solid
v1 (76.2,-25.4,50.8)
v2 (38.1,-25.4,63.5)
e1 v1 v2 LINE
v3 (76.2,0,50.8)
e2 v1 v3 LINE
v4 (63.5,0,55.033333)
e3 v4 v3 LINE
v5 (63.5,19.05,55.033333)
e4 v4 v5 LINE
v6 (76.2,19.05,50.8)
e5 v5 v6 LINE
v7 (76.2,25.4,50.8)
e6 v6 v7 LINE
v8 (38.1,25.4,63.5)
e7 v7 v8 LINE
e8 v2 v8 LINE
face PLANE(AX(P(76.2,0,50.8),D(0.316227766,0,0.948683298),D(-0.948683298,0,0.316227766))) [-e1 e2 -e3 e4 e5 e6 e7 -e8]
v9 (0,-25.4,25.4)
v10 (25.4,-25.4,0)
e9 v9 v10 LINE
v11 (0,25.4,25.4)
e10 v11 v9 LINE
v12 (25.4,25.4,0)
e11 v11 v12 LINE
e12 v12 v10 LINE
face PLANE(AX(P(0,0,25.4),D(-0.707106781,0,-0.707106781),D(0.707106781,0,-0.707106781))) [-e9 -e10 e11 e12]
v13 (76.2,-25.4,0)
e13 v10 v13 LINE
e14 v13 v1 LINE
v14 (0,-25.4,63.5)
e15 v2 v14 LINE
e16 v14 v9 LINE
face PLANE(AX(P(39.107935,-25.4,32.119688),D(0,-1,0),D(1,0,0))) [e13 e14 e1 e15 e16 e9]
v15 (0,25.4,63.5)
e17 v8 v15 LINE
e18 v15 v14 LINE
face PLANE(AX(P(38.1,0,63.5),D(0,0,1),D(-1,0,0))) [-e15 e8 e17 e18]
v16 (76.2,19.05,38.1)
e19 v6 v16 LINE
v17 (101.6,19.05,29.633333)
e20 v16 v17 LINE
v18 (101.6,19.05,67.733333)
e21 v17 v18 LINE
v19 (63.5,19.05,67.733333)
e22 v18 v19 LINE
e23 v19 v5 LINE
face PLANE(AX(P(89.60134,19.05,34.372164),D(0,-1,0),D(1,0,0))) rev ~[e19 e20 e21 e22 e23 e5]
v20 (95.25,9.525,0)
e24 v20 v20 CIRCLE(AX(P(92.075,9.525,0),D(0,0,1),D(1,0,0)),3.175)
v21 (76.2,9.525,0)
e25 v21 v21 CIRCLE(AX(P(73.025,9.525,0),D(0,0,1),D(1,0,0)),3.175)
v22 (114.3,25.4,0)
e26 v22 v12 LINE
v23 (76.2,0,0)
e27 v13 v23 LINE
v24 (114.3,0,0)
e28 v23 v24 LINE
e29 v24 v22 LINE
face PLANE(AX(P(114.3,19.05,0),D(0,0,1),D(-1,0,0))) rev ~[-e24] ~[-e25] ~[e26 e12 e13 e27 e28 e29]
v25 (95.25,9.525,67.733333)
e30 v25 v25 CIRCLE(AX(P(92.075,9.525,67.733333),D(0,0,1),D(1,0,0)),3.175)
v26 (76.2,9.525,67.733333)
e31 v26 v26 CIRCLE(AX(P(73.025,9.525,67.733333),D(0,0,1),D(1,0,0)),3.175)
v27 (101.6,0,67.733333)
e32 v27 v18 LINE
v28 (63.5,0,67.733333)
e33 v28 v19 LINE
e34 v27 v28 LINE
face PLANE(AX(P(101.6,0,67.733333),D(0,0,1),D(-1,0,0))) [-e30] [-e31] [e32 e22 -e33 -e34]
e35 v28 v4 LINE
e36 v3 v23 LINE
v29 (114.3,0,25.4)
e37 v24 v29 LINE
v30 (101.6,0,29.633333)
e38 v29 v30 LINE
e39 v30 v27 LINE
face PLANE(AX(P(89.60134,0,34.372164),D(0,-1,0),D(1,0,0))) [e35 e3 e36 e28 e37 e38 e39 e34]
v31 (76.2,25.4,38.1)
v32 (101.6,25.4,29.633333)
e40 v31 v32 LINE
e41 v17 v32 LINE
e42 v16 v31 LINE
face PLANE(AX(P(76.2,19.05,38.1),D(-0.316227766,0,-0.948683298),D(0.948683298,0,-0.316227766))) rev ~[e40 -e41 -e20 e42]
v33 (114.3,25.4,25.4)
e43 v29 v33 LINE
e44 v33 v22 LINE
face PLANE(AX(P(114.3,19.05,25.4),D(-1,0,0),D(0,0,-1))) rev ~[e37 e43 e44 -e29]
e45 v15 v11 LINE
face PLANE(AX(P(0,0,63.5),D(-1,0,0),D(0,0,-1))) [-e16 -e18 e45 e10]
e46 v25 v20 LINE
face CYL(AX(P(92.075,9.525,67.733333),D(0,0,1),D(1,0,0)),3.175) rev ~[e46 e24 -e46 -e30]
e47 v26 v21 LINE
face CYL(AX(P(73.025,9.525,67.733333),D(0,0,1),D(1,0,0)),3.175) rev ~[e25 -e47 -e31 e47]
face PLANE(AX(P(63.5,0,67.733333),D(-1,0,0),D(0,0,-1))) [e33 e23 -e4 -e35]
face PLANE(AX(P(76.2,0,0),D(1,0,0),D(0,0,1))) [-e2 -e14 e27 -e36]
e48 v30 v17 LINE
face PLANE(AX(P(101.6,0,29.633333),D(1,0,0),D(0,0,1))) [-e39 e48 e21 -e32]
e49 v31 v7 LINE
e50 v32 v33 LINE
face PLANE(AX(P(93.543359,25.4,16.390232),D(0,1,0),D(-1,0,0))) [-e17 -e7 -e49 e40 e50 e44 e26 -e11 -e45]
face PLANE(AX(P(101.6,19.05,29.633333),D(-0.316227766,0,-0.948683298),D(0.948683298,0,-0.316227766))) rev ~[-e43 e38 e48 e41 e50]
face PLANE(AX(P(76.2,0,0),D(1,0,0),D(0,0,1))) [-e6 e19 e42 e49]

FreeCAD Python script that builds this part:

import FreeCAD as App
import Part
import Sketcher
from FreeCAD import Vector
Q = App.Units.Quantity

doc = App.newDocument("Part")
body = doc.addObject("PartDesign::Body", "Body")

sketch1 = body.newObject("Sketcher::SketchObject", "Sketch")
sketch1.AttachmentSupport = (doc.getObject("XZ_Plane"), [""])
sketch1.MapMode = "FlatFace"
sketch1.addGeometry([
    Part.LineSegment(Vector(38, 64, 0), Vector(0, 64, 0)),
    Part.LineSegment(Vector(0, 64, 0), Vector(0, 25, 0)),
    Part.LineSegment(Vector(0, 25, 0), Vector(25, 0, 0)),
    Part.LineSegment(Vector(25, 0, 0), Vector(76, 0, 0)),
    Part.LineSegment(Vector(76, 0, 0), Vector(76, 51, 0)),
    Part.LineSegment(Vector(76, 51, 0), Vector(38, 64, 0)),
], False)
sketch1.addConstraint([
    Sketcher.Constraint("Coincident", 0, 2, 1, 1),
    Sketcher.Constraint("Coincident", 1, 2, 2, 1),
    Sketcher.Constraint("Coincident", 2, 2, 3, 1),
    Sketcher.Constraint("Coincident", 3, 2, 4, 1),
    Sketcher.Constraint("Coincident", 4, 2, 5, 1),
    Sketcher.Constraint("Coincident", 5, 2, 0, 1),
    Sketcher.Constraint("Horizontal", 0),
    Sketcher.Constraint("Vertical", 1),
    Sketcher.Constraint("Horizontal", 3),
    Sketcher.Constraint("Vertical", 4),
    Sketcher.Constraint("PointOnObject", 0, 2, -2),
    Sketcher.Constraint("PointOnObject", 2, 2, -1),
    Sketcher.Constraint("Equal", 0, 1),
    Sketcher.Constraint("Equal", 3, 4),
    Sketcher.Constraint("DistanceX", 3, 1, 3, 2, Q("2 in")),
    Sketcher.Constraint("DistanceX", 0, 2, 0, 1, Q("1.5 in")),
    Sketcher.Constraint("DistanceY", -1, 1, 1, 2, Q("1 in")),
    Sketcher.Constraint("DistanceX", -1, 1, 2, 2, Q("1 in")),
])
pad1 = body.newObject("PartDesign::Pad", "Pad")
pad1.Profile = sketch1
pad1.Length = Q("2 in")
pad1.Midplane = True

sketch2 = body.newObject("Sketcher::SketchObject", "Sketch001")
sketch2.AttachmentSupport = (doc.getObject("XZ_Plane"), [""])
sketch2.MapMode = "FlatFace"
sketch2.addGeometry([
    Part.LineSegment(Vector(64, 68, 0), Vector(64, 55, 0)),
    Part.LineSegment(Vector(64, 55, 0), Vector(76, 51, 0)),
    Part.LineSegment(Vector(76, 51, 0), Vector(76, 0, 0)),
    Part.LineSegment(Vector(76, 0, 0), Vector(114, 0, 0)),
    Part.LineSegment(Vector(114, 0, 0), Vector(114, 25, 0)),
    Part.LineSegment(Vector(114, 25, 0), Vector(102, 30, 0)),
    Part.LineSegment(Vector(102, 30, 0), Vector(102, 68, 0)),
    Part.LineSegment(Vector(102, 68, 0), Vector(64, 68, 0)),
], False)
sketch2.addConstraint([
    Sketcher.Constraint("Coincident", 0, 2, 1, 1),
    Sketcher.Constraint("Coincident", 1, 2, 2, 1),
    Sketcher.Constraint("Coincident", 2, 2, 3, 1),
    Sketcher.Constraint("Coincident", 3, 2, 4, 1),
    Sketcher.Constraint("Coincident", 4, 2, 5, 1),
    Sketcher.Constraint("Coincident", 5, 2, 6, 1),
    Sketcher.Constraint("Coincident", 6, 2, 7, 1),
    Sketcher.Constraint("Coincident", 7, 2, 0, 1),
    Sketcher.Constraint("Vertical", 0),
    Sketcher.Constraint("Vertical", 2),
    Sketcher.Constraint("Horizontal", 3),
    Sketcher.Constraint("Vertical", 4),
    Sketcher.Constraint("Vertical", 6),
    Sketcher.Constraint("Horizontal", 7),
    Sketcher.Constraint("PointOnObject", 2, 2, -1),
    Sketcher.Constraint("Parallel", 1, 5),
    Sketcher.Constraint("Equal", 3, 7),
    Sketcher.Constraint("Equal", 7, 6),
    Sketcher.Constraint("DistanceY", 2, 2, 2, 1, Q("2 in")),
    Sketcher.Constraint("DistanceY", 4, 1, 4, 2, Q("1 in")),
    Sketcher.Constraint("DistanceX", 3, 1, 3, 2, Q("1.5 in")),
    Sketcher.Constraint("DistanceX", -1, 1, 1, 2, Q("3 in")),
    Sketcher.Constraint("DistanceX", -1, 1, 5, 2, Q("4 in")),
    Sketcher.Constraint("Distance", 1, 13.386975),
])
pad2 = body.newObject("PartDesign::Pad", "Pad001")
pad2.Profile = sketch2
pad2.Length = Q("0.75 in")
pad2.Reversed = True

sketch3 = body.newObject("Sketcher::SketchObject", "Sketch002")
sketch3.AttachmentSupport = (doc.getObject("XZ_Plane"), [""])
sketch3.MapMode = "FlatFace"
sketch3.AttachmentOffset = App.Placement(Vector(0, 0, -0.75 * 25.4), App.Rotation())
sketch3.addGeometry([
    Part.LineSegment(Vector(102, 30, 0), Vector(114, 25, 0)),
    Part.LineSegment(Vector(114, 25, 0), Vector(114, 0, 0)),
    Part.LineSegment(Vector(114, 0, 0), Vector(76, 0, 0)),
    Part.LineSegment(Vector(76, 0, 0), Vector(76, 38, 0)),
    Part.LineSegment(Vector(76, 38, 0), Vector(102, 30, 0)),
], False)
sketch3.addConstraint([
    Sketcher.Constraint("Coincident", 0, 2, 1, 1),
    Sketcher.Constraint("Coincident", 1, 2, 2, 1),
    Sketcher.Constraint("Coincident", 2, 2, 3, 1),
    Sketcher.Constraint("Coincident", 3, 2, 4, 1),
    Sketcher.Constraint("Coincident", 4, 2, 0, 1),
    Sketcher.Constraint("Vertical", 1),
    Sketcher.Constraint("Horizontal", 2),
    Sketcher.Constraint("Vertical", 3),
    Sketcher.Constraint("PointOnObject", 1, 2, -1),
    Sketcher.Constraint("Parallel", 0, 4),
    Sketcher.Constraint("Equal", 2, 3),
    Sketcher.Constraint("DistanceY", 1, 2, 1, 1, Q("1 in")),
    Sketcher.Constraint("DistanceX", 2, 2, 2, 1, Q("1.5 in")),
    Sketcher.Constraint("DistanceX", -1, 1, 2, 2, Q("3 in")),
    Sketcher.Constraint("DistanceX", -1, 1, 4, 2, Q("4 in")),
])
pad3 = body.newObject("PartDesign::Pad", "Pad002")
pad3.Profile = sketch3
pad3.Length = Q("0.25 in")
pad3.Reversed = True

sketch4 = body.newObject("Sketcher::SketchObject", "Sketch003")
sketch4.AttachmentSupport = (doc.getObject("XY_Plane"), [""])
sketch4.MapMode = "FlatFace"
sketch4.AttachmentOffset = App.Placement(Vector(0, 0, 67.733333), App.Rotation())
sketch4.addGeometry([
    Part.Circle(Vector(73, 9.5, 0), Vector(0, 0, 1), 3.2),
    Part.Circle(Vector(92.1, 9.5, 0), Vector(0, 0, 1), 3.2),
], False)
sketch4.addConstraint([
    Sketcher.Constraint("Equal", 0, 1),
    Sketcher.Constraint("Horizontal", 0, 3, 1, 3),
    Sketcher.Constraint("Diameter", 0, Q("0.25 in")),
    Sketcher.Constraint("DistanceX", 0, 3, 1, 3, Q("0.75 in")),
    Sketcher.Constraint("DistanceX", -1, 1, 0, 3, Q("2.875 in")),
    Sketcher.Constraint("DistanceY", -1, 1, 0, 3, Q("0.375 in")),
])
pocket1 = body.newObject("PartDesign::Pocket", "Pocket")
pocket1.Profile = sketch4
pocket1.Type = "ThroughAll"

doc.recompute()
